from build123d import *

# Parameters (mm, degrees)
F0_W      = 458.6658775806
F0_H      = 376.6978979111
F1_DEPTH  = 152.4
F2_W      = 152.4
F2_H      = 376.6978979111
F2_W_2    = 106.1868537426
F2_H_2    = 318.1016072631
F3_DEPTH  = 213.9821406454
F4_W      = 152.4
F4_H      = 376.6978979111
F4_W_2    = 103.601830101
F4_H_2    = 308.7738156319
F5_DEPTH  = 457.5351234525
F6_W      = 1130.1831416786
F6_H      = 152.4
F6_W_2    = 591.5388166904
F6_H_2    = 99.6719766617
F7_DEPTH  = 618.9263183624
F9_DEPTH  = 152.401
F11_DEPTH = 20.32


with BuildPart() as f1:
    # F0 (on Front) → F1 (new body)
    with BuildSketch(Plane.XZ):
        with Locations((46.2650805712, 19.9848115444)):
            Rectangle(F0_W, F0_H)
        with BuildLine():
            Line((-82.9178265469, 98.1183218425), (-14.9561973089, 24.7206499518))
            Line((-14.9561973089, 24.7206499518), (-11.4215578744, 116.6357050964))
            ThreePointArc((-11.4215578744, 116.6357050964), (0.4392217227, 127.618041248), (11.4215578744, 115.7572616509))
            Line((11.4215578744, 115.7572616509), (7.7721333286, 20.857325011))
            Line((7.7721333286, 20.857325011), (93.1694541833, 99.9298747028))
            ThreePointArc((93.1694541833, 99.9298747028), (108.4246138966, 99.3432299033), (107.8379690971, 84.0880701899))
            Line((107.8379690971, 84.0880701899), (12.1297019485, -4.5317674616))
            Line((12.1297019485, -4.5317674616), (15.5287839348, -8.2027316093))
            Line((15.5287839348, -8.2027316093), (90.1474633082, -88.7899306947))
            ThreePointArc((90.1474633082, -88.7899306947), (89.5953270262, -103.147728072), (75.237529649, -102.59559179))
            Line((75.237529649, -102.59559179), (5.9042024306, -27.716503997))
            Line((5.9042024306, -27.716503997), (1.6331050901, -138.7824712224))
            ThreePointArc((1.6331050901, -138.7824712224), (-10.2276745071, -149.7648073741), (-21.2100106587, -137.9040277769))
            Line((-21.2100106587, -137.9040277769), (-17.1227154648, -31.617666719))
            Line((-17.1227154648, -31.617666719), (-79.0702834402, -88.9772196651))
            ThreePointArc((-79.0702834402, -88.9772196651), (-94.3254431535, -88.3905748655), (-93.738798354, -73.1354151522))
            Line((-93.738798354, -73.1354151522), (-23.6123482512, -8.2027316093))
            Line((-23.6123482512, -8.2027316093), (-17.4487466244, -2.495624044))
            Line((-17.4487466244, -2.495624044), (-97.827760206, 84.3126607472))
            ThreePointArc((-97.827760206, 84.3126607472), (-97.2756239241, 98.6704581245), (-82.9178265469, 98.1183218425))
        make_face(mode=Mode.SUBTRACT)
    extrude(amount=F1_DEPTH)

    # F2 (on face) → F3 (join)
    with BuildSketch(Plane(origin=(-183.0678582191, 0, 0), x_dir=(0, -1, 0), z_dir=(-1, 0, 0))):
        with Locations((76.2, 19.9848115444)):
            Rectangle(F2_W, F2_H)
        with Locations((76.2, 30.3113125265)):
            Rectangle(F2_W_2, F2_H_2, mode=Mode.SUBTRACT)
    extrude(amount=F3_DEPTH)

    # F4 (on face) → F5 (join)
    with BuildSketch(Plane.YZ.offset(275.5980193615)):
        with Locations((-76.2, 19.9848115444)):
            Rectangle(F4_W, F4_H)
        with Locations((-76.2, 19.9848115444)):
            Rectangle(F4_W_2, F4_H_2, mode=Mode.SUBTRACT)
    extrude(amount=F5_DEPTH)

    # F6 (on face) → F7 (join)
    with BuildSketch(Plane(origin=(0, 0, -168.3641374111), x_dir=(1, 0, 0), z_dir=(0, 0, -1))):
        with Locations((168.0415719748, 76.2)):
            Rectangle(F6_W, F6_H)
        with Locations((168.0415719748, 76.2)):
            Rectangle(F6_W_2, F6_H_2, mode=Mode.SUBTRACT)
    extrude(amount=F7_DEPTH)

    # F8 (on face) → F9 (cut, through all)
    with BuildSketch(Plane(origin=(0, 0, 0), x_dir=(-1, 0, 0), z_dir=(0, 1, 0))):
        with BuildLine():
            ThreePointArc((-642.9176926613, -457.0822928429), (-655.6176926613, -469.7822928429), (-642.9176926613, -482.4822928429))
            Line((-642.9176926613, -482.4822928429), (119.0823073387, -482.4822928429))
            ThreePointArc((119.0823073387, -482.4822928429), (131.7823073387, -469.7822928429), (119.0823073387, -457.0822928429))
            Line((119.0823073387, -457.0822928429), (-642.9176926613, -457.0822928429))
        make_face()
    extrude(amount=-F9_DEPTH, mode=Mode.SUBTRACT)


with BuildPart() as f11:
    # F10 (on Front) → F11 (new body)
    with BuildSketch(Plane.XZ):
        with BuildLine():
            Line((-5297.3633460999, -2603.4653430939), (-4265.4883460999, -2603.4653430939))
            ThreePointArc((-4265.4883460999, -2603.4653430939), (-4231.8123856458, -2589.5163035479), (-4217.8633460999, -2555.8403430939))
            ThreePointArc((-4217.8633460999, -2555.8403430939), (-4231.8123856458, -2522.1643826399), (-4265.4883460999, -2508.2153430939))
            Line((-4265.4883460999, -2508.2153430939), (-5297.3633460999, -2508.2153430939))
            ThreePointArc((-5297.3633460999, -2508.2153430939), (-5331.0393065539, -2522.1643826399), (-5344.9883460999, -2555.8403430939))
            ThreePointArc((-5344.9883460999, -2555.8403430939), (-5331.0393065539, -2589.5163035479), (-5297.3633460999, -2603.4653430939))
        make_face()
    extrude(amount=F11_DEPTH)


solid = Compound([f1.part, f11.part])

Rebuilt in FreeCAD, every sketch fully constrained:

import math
import FreeCAD as App
import Part
import Sketcher

V = App.Vector
Q = App.Units.Quantity

doc = App.newDocument("Part")
body = doc.addObject("PartDesign::Body", "Body")

# Sketch on XZ plane
sketch1 = doc.addObject("Sketcher::SketchObject", "Sketch")
body.addObject(sketch1)
sketch1.AttachmentSupport = (doc.XZ_Plane, [""])
sketch1.MapMode = "FlatFace"
sketch1.addGeometry([
    Part.LineSegment(V(-183.067858, 208.333761, 0), V(-183.067858, -168.364137, 0)),  # 0
    Part.LineSegment(V(-183.067858, -168.364137, 0), V(275.598019, -168.364137, 0)),  # 1
    Part.LineSegment(V(275.598019, -168.364137, 0), V(275.598019, 208.333761, 0)),  # 2
    Part.LineSegment(V(275.598019, 208.333761, 0), V(-183.067858, 208.333761, 0)),  # 3
    Part.ArcOfCircle(Part.Circle(V(-90.372793, 91.215491, 0), V(0, 0, 1), 10.16), math.radians(42.797747), math.radians(222.797747)),  # 4
    Part.LineSegment(V(-82.917827, 98.118322, 0), V(-14.956197, 24.72065, 0)),  # 5
    Part.LineSegment(V(-14.956197, 24.72065, 0), V(-11.421558, 116.635705, 0)),  # 6
    Part.ArcOfCircle(Part.Circle(V(0, 116.196483, 0), V(0, 0, 1), 11.43), math.radians(-2.202253), math.radians(177.797747)),  # 7
    Part.LineSegment(V(11.421558, 115.757262, 0), V(7.772133, 20.857325, 0)),  # 8
    Part.LineSegment(V(7.772133, 20.857325, 0), V(93.169454, 99.929875, 0)),  # 9
    Part.ArcOfCircle(Part.Circle(V(100.503712, 92.008972, 0), V(0, 0, 1), 10.795), math.radians(-47.202253), math.radians(132.797747)),  # 10
    Part.LineSegment(V(107.837969, 84.08807, 0), V(12.129702, -4.531767, 0)),  # 11
    Part.LineSegment(V(12.129702, -4.531767, 0), V(15.528784, -8.202732, 0)),  # 12
    Part.LineSegment(V(15.528784, -8.202732, 0), V(90.147463, -88.789931, 0)),  # 13
    Part.ArcOfCircle(Part.Circle(V(82.692496, -95.692761, 0), V(0, 0, 1), 10.16), math.radians(-137.202253), math.radians(42.797747)),  # 14
    Part.LineSegment(V(75.23753, -102.595592, 0), V(5.904202, -27.716504, 0)),  # 15
    Part.LineSegment(V(5.904202, -27.716504, 0), V(1.633105, -138.782471, 0)),  # 16
    Part.ArcOfCircle(Part.Circle(V(-9.788453, -138.34325, 0), V(0, 0, 1), 11.43), math.radians(177.797747), math.radians(357.797747)),  # 17
    Part.LineSegment(V(-21.210011, -137.904028, 0), V(-17.122715, -31.617667, 0)),  # 18
    Part.LineSegment(V(-17.122715, -31.617667, 0), V(-79.070283, -88.97722, 0)),  # 19
    Part.ArcOfCircle(Part.Circle(V(-86.404541, -81.056317, 0), V(0, 0, 1), 10.795), math.radians(132.797747), math.radians(312.797747)),  # 20
    Part.LineSegment(V(-93.738798, -73.135415, 0), V(-23.612348, -8.202732, 0)),  # 21
    Part.LineSegment(V(-23.612348, -8.202732, 0), V(-17.448747, -2.495624, 0)),  # 22
    Part.LineSegment(V(-17.448747, -2.495624, 0), V(-97.82776, 84.312661, 0)),  # 23
], False)
sketch1.addConstraint([
    Sketcher.Constraint("Coincident", 0, 2, 1, 1),
    Sketcher.Constraint("Coincident", 1, 2, 2, 1),
    Sketcher.Constraint("Coincident", 2, 2, 3, 1),
    Sketcher.Constraint("Coincident", 3, 2, 0, 1),
    Sketcher.Constraint("Tangent", 4, 1, 5, 1),
    Sketcher.Constraint("Coincident", 5, 2, 6, 1),
    Sketcher.Constraint("Tangent", 6, 2, 7, 2),
    Sketcher.Constraint("Tangent", 7, 1, 8, 1),
    Sketcher.Constraint("Coincident", 8, 2, 9, 1),
    Sketcher.Constraint("Tangent", 9, 2, 10, 2),
    Sketcher.Constraint("Tangent", 10, 1, 11, 1),
    Sketcher.Constraint("Coincident", 11, 2, 12, 1),
    Sketcher.Constraint("Coincident", 12, 2, 13, 1),
    Sketcher.Constraint("Tangent", 13, 2, 14, 2),
    Sketcher.Constraint("Tangent", 14, 1, 15, 1),
    Sketcher.Constraint("Coincident", 15, 2, 16, 1),
    Sketcher.Constraint("Tangent", 16, 2, 17, 2),
    Sketcher.Constraint("Tangent", 17, 1, 18, 1),
    Sketcher.Constraint("Coincident", 18, 2, 19, 1),
    Sketcher.Constraint("Tangent", 19, 2, 20, 2),
    Sketcher.Constraint("Tangent", 20, 1, 21, 1),
    Sketcher.Constraint("Coincident", 21, 2, 22, 1),
    Sketcher.Constraint("Coincident", 22, 2, 23, 1),
    Sketcher.Constraint("Tangent", 23, 2, 4, 2),
    Sketcher.Constraint("Vertical", 0),
    Sketcher.Constraint("Horizontal", 1),
    Sketcher.Constraint("Vertical", 2),
    Sketcher.Constraint("Horizontal", 3),
    Sketcher.Constraint("Equal", 4, 14),
    Sketcher.Constraint("Equal", 7, 17),
    Sketcher.Constraint("Equal", 10, 20),
    Sketcher.Constraint("PointOnObject", 7, 3, -2),
    Sketcher.Constraint("Parallel", 6, 8),
    Sketcher.Constraint("Perpendicular", 5, 9),
    Sketcher.Constraint("Parallel", 9, 11),
    Sketcher.Constraint("Perpendicular", 11, 12),
    Sketcher.Constraint("Parallel", 12, 13),
    Sketcher.Constraint("Parallel", 13, 15),
    Sketcher.Constraint("Parallel", 8, 16),
    Sketcher.Constraint("Parallel", 16, 18),
    Sketcher.Constraint("Perpendicular", 15, 19),
    Sketcher.Constraint("Parallel", 19, 21),
    Sketcher.Constraint("Parallel", 21, 22),
    Sketcher.Constraint("Perpendicular", 22, 23),
    Sketcher.Constraint("Horizontal", 12, 2, 21, 2),
    Sketcher.Constraint("Radius", 4, Q("0.4 in")),
    Sketcher.Constraint("Radius", 7, Q("0.45 in")),
    Sketcher.Constraint("Radius", 10, Q("0.425 in")),
    Sketcher.Constraint("DistanceX", 8, 2, 10, 1, Q("3.9395998 in")),
    Sketcher.Constraint("Distance", 5, Q("100.030002 mm")),
    Sketcher.Constraint("DistanceX", -1, 1, 11, 2, Q("12.129702 mm")),
    Sketcher.Constraint("DistanceX", 20, 1, -1, 1, Q("93.738798 mm")),
    Sketcher.Constraint("DistanceY", 20, 3, 7, 3, Q("197.252801 mm")),
    Sketcher.Constraint("DistanceX", 5, 2, 11, 2, Q("27.085899 mm")),
    Sketcher.Constraint("DistanceY", 13, 2, 12, 2, Q("80.587199 mm")),
    Sketcher.Constraint("DistanceX", 15, 2, 11, 2, Q("6.2255 mm")),
    Sketcher.Constraint("DistanceY", 18, 2, 11, 2, Q("27.085899 mm")),
    Sketcher.Constraint("DistanceX", 18, 2, 12, 2, Q("32.651499 mm")),
    Sketcher.Constraint("DistanceX", 21, 2, 22, 2, Q("6.163602 mm")),
    Sketcher.Constraint("Distance", 8, Q("94.970081 mm")),
    Sketcher.Constraint("Distance", 16, Q("111.14806 mm")),
    Sketcher.Constraint("DistanceX", 1, 1, 1, 2, Q("458.665878 mm")),
    Sketcher.Constraint("DistanceY", 0, 2, 0, 1, Q("376.697898 mm")),
    Sketcher.Constraint("DistanceY", -1, 1, 4, 3, Q("91.215491 mm")),
    Sketcher.Constraint("DistanceX", 0, 2, -1, 1, Q("183.067858 mm")),
    Sketcher.Constraint("DistanceY", -1, 1, 2, 2, Q("208.333761 mm")),
])
pad1 = doc.addObject("PartDesign::Pad", "Pad")
body.addObject(pad1)
pad1.Profile = sketch1
pad1.Length = Q("6 in")

# Sketch on YZ plane
sketch2 = doc.addObject("Sketcher::SketchObject", "Sketch001")
body.addObject(sketch2)
sketch2.AttachmentSupport = (doc.YZ_Plane, [""])
sketch2.MapMode = "FlatFace"
sketch2.AttachmentOffset = App.Placement(V(0, 0, -183.067858), App.Rotation())
sketch2.addGeometry([
    Part.LineSegment(V(0, 208.333761, 0), V(0, -168.364137, 0)),  # 0
    Part.LineSegment(V(0, -168.364137, 0), V(-152.4, -168.364137, 0)),  # 1
    Part.LineSegment(V(-152.4, -168.364137, 0), V(-152.4, 208.333761, 0)),  # 2
    Part.LineSegment(V(-152.4, 208.333761, 0), V(0, 208.333761, 0)),  # 3
    Part.LineSegment(V(-129.293427, -128.739491, 0), V(-23.106573, -128.739491, 0)),  # 4
    Part.LineSegment(V(-23.106573, -128.739491, 0), V(-23.106573, 189.362116, 0)),  # 5
    Part.LineSegment(V(-23.106573, 189.362116, 0), V(-129.293427, 189.362116, 0)),  # 6
    Part.LineSegment(V(-129.293427, 189.362116, 0), V(-129.293427, -128.739491, 0)),  # 7
], False)
sketch2.addConstraint([
    Sketcher.Constraint("Coincident", 0, 2, 1, 1),
    Sketcher.Constraint("Coincident", 1, 2, 2, 1),
    Sketcher.Constraint("Coincident", 2, 2, 3, 1),
    Sketcher.Constraint("Coincident", 3, 2, 0, 1),
    Sketcher.Constraint("Coincident", 4, 2, 5, 1),
    Sketcher.Constraint("Coincident", 5, 2, 6, 1),
    Sketcher.Constraint("Coincident", 6, 2, 7, 1),
    Sketcher.Constraint("Coincident", 7, 2, 4, 1),
    Sketcher.Constraint("Vertical", 0),
    Sketcher.Constraint("Horizontal", 1),
    Sketcher.Constraint("Vertical", 2),
    Sketcher.Constraint("Horizontal", 3),
    Sketcher.Constraint("Horizontal", 4),
    Sketcher.Constraint("Vertical", 5),
    Sketcher.Constraint("Horizontal", 6),
    Sketcher.Constraint("Vertical", 7),
    Sketcher.Constraint("PointOnObject", 0, 2, -2),
    Sketcher.Constraint("DistanceX", 1, 2, 1, 1, Q("6 in")),
    Sketcher.Constraint("DistanceX", 4, 1, 4, 2, Q("106.186854 mm")),
    Sketcher.Constraint("DistanceY", 0, 2, 0, 1, Q("376.697898 mm")),
    Sketcher.Constraint("DistanceY", 5, 1, 5, 2, Q("318.101607 mm")),
    Sketcher.Constraint("DistanceY", -1, 1, 2, 2, Q("208.333761 mm")),
    Sketcher.Constraint("DistanceY", 4, 2, -1, 1, Q("128.739491 mm")),
    Sketcher.Constraint("DistanceX", 4, 2, -1, 1, Q("23.106573 mm")),
])
pad2 = doc.addObject("PartDesign::Pad", "Pad001")
body.addObject(pad2)
pad2.Profile = sketch2
pad2.Length = 213.982141
pad2.Reversed = True

# Sketch on YZ plane
sketch3 = doc.addObject("Sketcher::SketchObject", "Sketch002")
body.addObject(sketch3)
sketch3.AttachmentSupport = (doc.YZ_Plane, [""])
sketch3.MapMode = "FlatFace"
sketch3.AttachmentOffset = App.Placement(V(0, 0, 275.598019), App.Rotation())
sketch3.addGeometry([
    Part.LineSegment(V(-152.4, 208.333761, 0), V(-152.4, -168.364137, 0)),  # 0
    Part.LineSegment(V(-152.4, -168.364137, 0), V(0, -168.364137, 0)),  # 1
    Part.LineSegment(V(0, -168.364137, 0), V(0, 208.333761, 0)),  # 2
    Part.LineSegment(V(0, 208.333761, 0), V(-152.4, 208.333761, 0)),  # 3
    Part.LineSegment(V(-24.399085, -134.402096, 0), V(-128.000915, -134.402096, 0)),  # 4
    Part.LineSegment(V(-128.000915, -134.402096, 0), V(-128.000915, 174.371719, 0)),  # 5
    Part.LineSegment(V(-128.000915, 174.371719, 0), V(-24.399085, 174.371719, 0)),  # 6
    Part.LineSegment(V(-24.399085, 174.371719, 0), V(-24.399085, -134.402096, 0)),  # 7
], False)
sketch3.addConstraint([
    Sketcher.Constraint("Coincident", 0, 2, 1, 1),
    Sketcher.Constraint("Coincident", 1, 2, 2, 1),
    Sketcher.Constraint("Coincident", 2, 2, 3, 1),
    Sketcher.Constraint("Coincident", 3, 2, 0, 1),
    Sketcher.Constraint("Coincident", 4, 2, 5, 1),
    Sketcher.Constraint("Coincident", 5, 2, 6, 1),
    Sketcher.Constraint("Coincident", 6, 2, 7, 1),
    Sketcher.Constraint("Coincident", 7, 2, 4, 1),
    Sketcher.Constraint("Vertical", 0),
    Sketcher.Constraint("Horizontal", 1),
    Sketcher.Constraint("Vertical", 2),
    Sketcher.Constraint("Horizontal", 3),
    Sketcher.Constraint("Horizontal", 4),
    Sketcher.Constraint("Vertical", 5),
    Sketcher.Constraint("Horizontal", 6),
    Sketcher.Constraint("Vertical", 7),
    Sketcher.Constraint("PointOnObject", 1, 2, -2),
    Sketcher.Constraint("DistanceX", 1, 1, 1, 2, Q("6 in")),
    Sketcher.Constraint("DistanceX", 4, 2, 4, 1, Q("103.60183 mm")),
    Sketcher.Constraint("DistanceY", 0, 2, 0, 1, Q("376.697898 mm")),
    Sketcher.Constraint("DistanceY", 5, 1, 5, 2, Q("308.773816 mm")),
    Sketcher.Constraint("DistanceY", -1, 1, 2, 2, Q("208.333761 mm")),
    Sketcher.Constraint("DistanceY", -1, 1, 5, 2, Q("174.371719 mm")),
    Sketcher.Constraint("DistanceX", 4, 2, -1, 1, Q("128.000915 mm")),
])
pad3 = doc.addObject("PartDesign::Pad", "Pad002")
body.addObject(pad3)
pad3.Profile = sketch3
pad3.Length = 457.535123

# Sketch on XY plane
sketch4 = doc.addObject("Sketcher::SketchObject", "Sketch003")
body.addObject(sketch4)
sketch4.AttachmentSupport = (doc.XY_Plane, [""])
sketch4.MapMode = "FlatFace"
sketch4.AttachmentOffset = App.Placement(V(0, 0, -168.364137), App.Rotation())
sketch4.addGeometry([
    Part.LineSegment(V(-397.049999, -152.4, 0), V(-397.049999, 0, 0)),  # 0
    Part.LineSegment(V(-397.049999, 0, 0), V(733.133143, 0, 0)),  # 1
    Part.LineSegment(V(733.133143, 0, 0), V(733.133143, -152.4, 0)),  # 2
    Part.LineSegment(V(733.133143, -152.4, 0), V(-397.049999, -152.4, 0)),  # 3
    Part.LineSegment(V(463.81098, -26.364012, 0), V(-127.727836, -26.364012, 0)),  # 4
    Part.LineSegment(V(-127.727836, -26.364012, 0), V(-127.727836, -126.035988, 0)),  # 5
    Part.LineSegment(V(-127.727836, -126.035988, 0), V(463.81098, -126.035988, 0)),  # 6
    Part.LineSegment(V(463.81098, -126.035988, 0), V(463.81098, -26.364012, 0)),  # 7
], False)
sketch4.addConstraint([
    Sketcher.Constraint("Coincident", 0, 2, 1, 1),
    Sketcher.Constraint("Coincident", 1, 2, 2, 1),
    Sketcher.Constraint("Coincident", 2, 2, 3, 1),
    Sketcher.Constraint("Coincident", 3, 2, 0, 1),
    Sketcher.Constraint("Coincident", 4, 2, 5, 1),
    Sketcher.Constraint("Coincident", 5, 2, 6, 1),
    Sketcher.Constraint("Coincident", 6, 2, 7, 1),
    Sketcher.Constraint("Coincident", 7, 2, 4, 1),
    Sketcher.Constraint("Vertical", 0),
    Sketcher.Constraint("Horizontal", 1),
    Sketcher.Constraint("Vertical", 2),
    Sketcher.Constraint("Horizontal", 3),
    Sketcher.Constraint("Horizontal", 4),
    Sketcher.Constraint("Vertical", 5),
    Sketcher.Constraint("Horizontal", 6),
    Sketcher.Constraint("Vertical", 7),
    Sketcher.Constraint("PointOnObject", 0, 2, -1),
    Sketcher.Constraint("DistanceY", 0, 1, 0, 2, Q("6 in")),
    Sketcher.Constraint("DistanceX", 1, 1, 1, 2, Q("1130.183142 mm")),
    Sketcher.Constraint("DistanceX", 0, 2, -1, 1, Q("397.049999 mm")),
    Sketcher.Constraint("DistanceX", 4, 2, 4, 1, Q("591.538817 mm")),
    Sketcher.Constraint("DistanceY", 5, 2, 5, 1, Q("99.671977 mm")),
    Sketcher.Constraint("DistanceY", 4, 2, -1, 1, Q("26.364012 mm")),
    Sketcher.Constraint("DistanceX", -1, 1, 6, 2, Q("463.81098 mm")),
])
pad4 = doc.addObject("PartDesign::Pad", "Pad003")
body.addObject(pad4)
pad4.Profile = sketch4
pad4.Length = 618.926318
pad4.Reversed = True

# Sketch on XZ plane
sketch5 = doc.addObject("Sketcher::SketchObject", "Sketch004")
body.addObject(sketch5)
sketch5.AttachmentSupport = (doc.XZ_Plane, [""])
sketch5.MapMode = "FlatFace"
sketch5.addGeometry([
    Part.ArcOfCircle(Part.Circle(V(642.917693, -469.782293, 0), V(0, 0, 1), 12.7), math.radians(-90), math.radians(90)),
    Part.LineSegment(V(642.917693, -482.482293, 0), V(-119.082307, -482.482293, 0)),
    Part.ArcOfCircle(Part.Circle(V(-119.082307, -469.782293, 0), V(0, 0, 1), 12.7), math.radians(90), math.radians(270)),
    Part.LineSegment(V(-119.082307, -457.082293, 0), V(642.917693, -457.082293, 0)),
], False)
sketch5.addConstraint([
    Sketcher.Constraint("Tangent", 0, 1, 1, 1),
    Sketcher.Constraint("Tangent", 1, 2, 2, 2),
    Sketcher.Constraint("Tangent", 2, 1, 3, 1),
    Sketcher.Constraint("Tangent", 3, 2, 0, 2),
    Sketcher.Constraint("Horizontal", 1),
    Sketcher.Constraint("Horizontal", 3),
    Sketcher.Constraint("Radius", 0, Q("0.5 in")),
    Sketcher.Constraint("DistanceX", 1, 2, 1, 1, Q("30 in")),
    Sketcher.Constraint("DistanceX", -1, 1, 0, 3, Q("642.917693 mm")),
    Sketcher.Constraint("DistanceY", 0, 3, -1, 1, Q("469.782293 mm")),
])
pocket1 = doc.addObject("PartDesign::Pocket", "Pocket")
body.addObject(pocket1)
pocket1.Profile = sketch5
pocket1.Type = "ThroughAll"
pocket1.Reversed = True
body2 = doc.addObject("PartDesign::Body", "Body001")

# Sketch on XZ plane
sketch6 = doc.addObject("Sketcher::SketchObject", "Sketch005")
body2.addObject(sketch6)
sketch6.AttachmentSupport = (doc.getObject("XZ_Plane001"), [""])
sketch6.MapMode = "FlatFace"
sketch6.addGeometry([
    Part.LineSegment(V(-5297.363346, -2603.465343, 0), V(-4265.488346, -2603.465343, 0)),  # 0
    Part.ArcOfCircle(Part.Circle(V(-4265.488346, -2555.840343, 0), V(0, 0, 1), 47.625), math.radians(-90), math.radians(0)),  # 1
    Part.ArcOfCircle(Part.Circle(V(-4265.488346, -2555.840343, 0), V(0, 0, 1), 47.625), math.radians(0), math.radians(90)),  # 2
    Part.LineSegment(V(-4265.488346, -2508.215343, 0), V(-5297.363346, -2508.215343, 0)),  # 3
    Part.ArcOfCircle(Part.Circle(V(-5297.363346, -2555.840343, 0), V(0, 0, 1), 47.625), math.radians(90), math.radians(180)),  # 4
    Part.ArcOfCircle(Part.Circle(V(-5297.363346, -2555.840343, 0), V(0, 0, 1), 47.625), math.radians(180), math.radians(270)),  # 5
], False)
sketch6.addConstraint([
    Sketcher.Constraint("Tangent", 0, 2, 1, 1),
    Sketcher.Constraint("Tangent", 1, 2, 2, 1),
    Sketcher.Constraint("Tangent", 2, 2, 3, 1),
    Sketcher.Constraint("Tangent", 3, 2, 4, 1),
    Sketcher.Constraint("Tangent", 4, 2, 5, 1),
    Sketcher.Constraint("Tangent", 5, 2, 0, 1),
    Sketcher.Constraint("Horizontal", 0),
    Sketcher.Constraint("Horizontal", 3),
    Sketcher.Constraint("Equal", 1, 2),
    Sketcher.Constraint("Equal", 2, 4),
    Sketcher.Constraint("Horizontal", 5, 3, 1, 2),
    Sketcher.Constraint("Horizontal", 1, 2, 4, 2),
    Sketcher.Constraint("Radius", 1, Q("1.875 in")),
    Sketcher.Constraint("DistanceX", 4, 3, 1, 2, Q("42.5 in")),
    Sketcher.Constraint("DistanceX", 1, 3, -1, 1, Q("4265.488346 mm")),
    Sketcher.Constraint("DistanceY", 1, 3, -1, 1, Q("2555.840343 mm")),
])
pad5 = doc.addObject("PartDesign::Pad", "Pad004")
body2.addObject(pad5)
pad5.Profile = sketch6
pad5.Length = Q("0.8 in")

doc.recompute()
